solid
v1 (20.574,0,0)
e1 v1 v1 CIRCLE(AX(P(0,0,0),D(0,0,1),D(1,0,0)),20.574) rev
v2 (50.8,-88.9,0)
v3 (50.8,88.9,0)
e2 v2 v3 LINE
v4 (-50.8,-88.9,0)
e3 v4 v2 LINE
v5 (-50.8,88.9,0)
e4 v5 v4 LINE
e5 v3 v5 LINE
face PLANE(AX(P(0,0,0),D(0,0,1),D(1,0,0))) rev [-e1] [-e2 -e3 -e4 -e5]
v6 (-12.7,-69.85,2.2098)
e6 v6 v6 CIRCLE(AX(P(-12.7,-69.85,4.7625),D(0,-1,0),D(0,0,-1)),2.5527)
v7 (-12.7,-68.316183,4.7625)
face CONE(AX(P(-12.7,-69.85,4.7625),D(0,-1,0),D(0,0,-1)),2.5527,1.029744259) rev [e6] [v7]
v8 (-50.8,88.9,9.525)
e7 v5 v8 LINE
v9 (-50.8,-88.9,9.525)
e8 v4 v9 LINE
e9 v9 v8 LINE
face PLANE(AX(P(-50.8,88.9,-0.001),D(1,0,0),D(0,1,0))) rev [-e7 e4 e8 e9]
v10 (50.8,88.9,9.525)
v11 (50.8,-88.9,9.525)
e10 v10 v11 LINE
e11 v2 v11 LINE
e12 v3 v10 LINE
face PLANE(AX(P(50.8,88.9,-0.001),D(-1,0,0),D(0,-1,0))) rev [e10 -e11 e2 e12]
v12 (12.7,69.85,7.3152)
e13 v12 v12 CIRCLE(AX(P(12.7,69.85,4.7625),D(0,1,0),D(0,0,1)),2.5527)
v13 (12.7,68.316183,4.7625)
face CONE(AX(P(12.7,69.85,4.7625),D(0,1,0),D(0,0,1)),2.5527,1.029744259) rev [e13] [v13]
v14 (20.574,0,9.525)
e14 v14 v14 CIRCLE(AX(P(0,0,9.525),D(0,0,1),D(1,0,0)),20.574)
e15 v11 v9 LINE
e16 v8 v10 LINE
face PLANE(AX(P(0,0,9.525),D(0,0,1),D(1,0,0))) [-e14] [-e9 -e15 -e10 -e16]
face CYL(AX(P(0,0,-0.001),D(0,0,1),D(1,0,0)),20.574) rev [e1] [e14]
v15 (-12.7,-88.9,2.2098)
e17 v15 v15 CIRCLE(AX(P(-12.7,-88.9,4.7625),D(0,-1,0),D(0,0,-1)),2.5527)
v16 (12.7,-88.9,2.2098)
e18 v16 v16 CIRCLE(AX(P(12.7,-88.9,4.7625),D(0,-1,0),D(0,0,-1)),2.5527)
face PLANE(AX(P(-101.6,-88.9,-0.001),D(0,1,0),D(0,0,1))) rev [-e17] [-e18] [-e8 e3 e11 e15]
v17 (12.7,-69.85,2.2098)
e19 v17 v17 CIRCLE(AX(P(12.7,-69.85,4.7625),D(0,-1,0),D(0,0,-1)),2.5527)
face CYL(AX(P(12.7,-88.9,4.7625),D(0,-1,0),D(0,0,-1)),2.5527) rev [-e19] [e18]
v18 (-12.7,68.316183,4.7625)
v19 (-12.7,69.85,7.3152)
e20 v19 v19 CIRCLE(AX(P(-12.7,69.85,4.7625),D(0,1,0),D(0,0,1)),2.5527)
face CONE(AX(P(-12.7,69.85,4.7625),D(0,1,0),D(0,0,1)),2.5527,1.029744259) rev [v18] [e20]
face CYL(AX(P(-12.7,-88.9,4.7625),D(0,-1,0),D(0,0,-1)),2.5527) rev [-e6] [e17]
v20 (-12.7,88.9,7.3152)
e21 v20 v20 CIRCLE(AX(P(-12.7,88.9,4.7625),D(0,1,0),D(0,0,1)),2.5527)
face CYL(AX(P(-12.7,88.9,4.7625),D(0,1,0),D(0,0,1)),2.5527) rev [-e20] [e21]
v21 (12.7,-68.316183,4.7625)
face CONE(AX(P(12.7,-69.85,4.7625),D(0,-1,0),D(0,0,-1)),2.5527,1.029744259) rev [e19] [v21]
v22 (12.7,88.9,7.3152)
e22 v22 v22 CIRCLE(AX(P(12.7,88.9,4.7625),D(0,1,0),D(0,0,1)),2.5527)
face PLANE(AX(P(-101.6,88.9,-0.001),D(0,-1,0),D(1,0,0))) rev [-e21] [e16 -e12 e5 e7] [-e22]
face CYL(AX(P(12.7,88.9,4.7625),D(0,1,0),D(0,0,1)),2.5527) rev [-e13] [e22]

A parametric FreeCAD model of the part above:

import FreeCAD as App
import Part
import Sketcher

V = App.Vector
Q = App.Units.Quantity


def add_polygon(sketch, points):
    """Adds a closed chain of lines whose ends are joined by coincident constraints."""
    first, n = sketch.GeometryCount, len(points)
    for a, b in zip(points, points[1:] + points[:1]):
        sketch.addGeometry(Part.LineSegment(App.Vector(*a, 0), App.Vector(*b, 0)), False)
    for i in range(n):
        sketch.addConstraint(Sketcher.Constraint("Coincident", first + i, 2, first + (i + 1) % n, 1))

doc = App.newDocument("Part")
body = doc.addObject("PartDesign::Body", "Body")

sketch1 = body.newObject("Sketcher::SketchObject", "Sketch")
sketch1.AttachmentSupport = (doc.getObject("XY_Plane"), [""])
sketch1.MapMode = "FlatFace"
add_polygon(sketch1, [(-101.6, 152.4), (-101.6, -152.4), (101.6, -152.4), (101.6, 152.4)])
sketch1.addConstraint([
    Sketcher.Constraint("Vertical", 0),
    Sketcher.Constraint("Horizontal", 1),
    Sketcher.Constraint("Vertical", 2),
    Sketcher.Constraint("Horizontal", 3),
    Sketcher.Constraint("Symmetric", 0, 2, 2, 2, -1, 1),
    Sketcher.Constraint("DistanceX", 1, 1, 1, 2, Q("8 in")),
    Sketcher.Constraint("DistanceY", 0, 2, 0, 1, Q("12 in")),
])
pad1 = body.newObject("PartDesign::Pad", "Pad")
pad1.Profile = sketch1
pad1.Length = Q("0.375 in")

sketch2 = body.newObject("Sketcher::SketchObject", "Sketch001")
sketch2.AttachmentSupport = (doc.getObject("XY_Plane"), [""])
sketch2.MapMode = "FlatFace"
sketch2.AttachmentOffset = App.Placement(V(0, 0, 0.375 * 25.4), App.Rotation())
sketch2.addGeometry(Part.Circle(V(0, 0, 0), V(0, 0, 1), 20.574), False)
sketch2.addConstraint([
    Sketcher.Constraint("Coincident", 0, 3, -1, 1),
    Sketcher.Constraint("Diameter", 0, Q("1.62 in")),
])
pocket1 = body.newObject("PartDesign::Pocket", "Pocket")
pocket1.Profile = sketch2
pocket1.Type = "UpToFirst"

sketch3 = body.newObject("Sketcher::SketchObject", "Sketch002")
sketch3.AttachmentSupport = (doc.getObject("XY_Plane"), [""])
sketch3.MapMode = "FlatFace"
sketch3.AttachmentOffset = App.Placement(V(0, 0, 0.375 * 25.4), App.Rotation())
add_polygon(sketch3, [(-101.6, -88.9), (-101.6, -152.4), (101.6, -152.4), (101.6, -88.9)])
sketch3.addConstraint([
    Sketcher.Constraint("Vertical", 0),
    Sketcher.Constraint("Horizontal", 1),
    Sketcher.Constraint("Vertical", 2),
    Sketcher.Constraint("Horizontal", 3),
    Sketcher.Constraint("DistanceX", 1, 1, 1, 2, Q("8 in")),
    Sketcher.Constraint("DistanceY", 0, 2, 0, 1, Q("2.5 in")),
    Sketcher.Constraint("DistanceX", 0, 2, -1, 1, Q("4 in")),
    Sketcher.Constraint("DistanceY", 0, 2, -1, 1, Q("6 in")),
])
pocket2 = body.newObject("PartDesign::Pocket", "Pocket001")
pocket2.Profile = sketch3
pocket2.Type = "UpToFirst"

sketch4 = body.newObject("Sketcher::SketchObject", "Sketch003")
sketch4.AttachmentSupport = (doc.getObject("XY_Plane"), [""])
sketch4.MapMode = "FlatFace"
sketch4.AttachmentOffset = App.Placement(V(0, 0, 0.375 * 25.4), App.Rotation())
add_polygon(sketch4, [(-101.6, 152.4), (-101.6, 88.9), (101.6, 88.9), (101.6, 152.4)])
sketch4.addConstraint([
    Sketcher.Constraint("Vertical", 0),
    Sketcher.Constraint("Horizontal", 1),
    Sketcher.Constraint("Vertical", 2),
    Sketcher.Constraint("Horizontal", 3),
    Sketcher.Constraint("DistanceX", 1, 1, 1, 2, Q("8 in")),
    Sketcher.Constraint("DistanceY", 0, 2, 0, 1, Q("2.5 in")),
    Sketcher.Constraint("DistanceX", 0, 2, -1, 1, Q("4 in")),
    Sketcher.Constraint("DistanceY", -1, 1, 2, 2, Q("6 in")),
])
pocket3 = body.newObject("PartDesign::Pocket", "Pocket002")
pocket3.Profile = sketch4
pocket3.Type = "UpToFirst"

sketch5 = body.newObject("Sketcher::SketchObject", "Sketch004")
sketch5.AttachmentSupport = (doc.getObject("YZ_Plane"), [""])
sketch5.MapMode = "FlatFace"
sketch5.AttachmentOffset = App.Placement(V(0, 0, -0.5 * 25.4), App.Rotation())
add_polygon(sketch5, [(68.316183, 4.7625), (88.9, 4.7625), (88.9, 7.3152), (69.85, 7.3152)])
sketch5.addGeometry(Part.LineSegment(V(88.9, 4.7625, 0), V(68.316183, 4.7625, 0)), True)
sketch5.addConstraint([
    Sketcher.Constraint("Horizontal", 0),
    Sketcher.Constraint("Vertical", 1),
    Sketcher.Constraint("Horizontal", 2),
    Sketcher.Constraint("Horizontal", 4),
    Sketcher.Constraint("Coincident", 4, 1, 0, 2),
    Sketcher.Constraint("Equal", 0, 4),
    Sketcher.Constraint("Angle", 3, Q("-121 deg")),
    Sketcher.Constraint("DistanceX", 2, 2, 2, 1, Q("0.75 in")),
    Sketcher.Constraint("DistanceX", -1, 1, 0, 2, Q("3.5 in")),
    Sketcher.Constraint("DistanceY", 1, 1, 1, 2, Q("0.1005 in")),
    Sketcher.Constraint("DistanceY", -1, 1, 0, 2, Q("0.1875 in")),
])
groove = body.newObject("PartDesign::Groove", "Groove")
groove.Profile = sketch5
groove.ReferenceAxis = (sketch5, ["Axis0"])
groove.Angle = 360
doc.recompute()

linearpattern = body.newObject("PartDesign::LinearPattern", "LinearPattern")
linearpattern.Originals = [groove]
linearpattern.Direction = (doc.getObject("X_Axis"), [""])
linearpattern.Mode = "offset"
linearpattern.Offset = Q("1 in")
linearpattern.Occurrences = 2
body.Tip = linearpattern
doc.recompute()

mirrored = body.newObject("PartDesign::Mirrored", "Mirrored")
mirrored.Originals = [groove]
mirrored.MirrorPlane = (doc.getObject("XZ_Plane"), [""])
body.Tip = mirrored

sketch6 = body.newObject("Sketcher::SketchObject", "Sketch005")
sketch6.AttachmentSupport = (doc.getObject("YZ_Plane"), [""])
sketch6.MapMode = "FlatFace"
sketch6.AttachmentOffset = App.Placement(V(0, 0, 0.5 * 25.4), App.Rotation())
add_polygon(sketch6, [(-88.9, 4.7625), (-68.316183, 4.7625), (-69.85, 7.3152), (-88.9, 7.3152)])
sketch6.addGeometry(Part.LineSegment(V(-68.316183, 4.7625, 0), V(-88.9, 4.7625, 0)), True)
sketch6.addConstraint([
    Sketcher.Constraint("Horizontal", 0),
    Sketcher.Constraint("Horizontal", 2),
    Sketcher.Constraint("Vertical", 3),
    Sketcher.Constraint("Horizontal", 4),
    Sketcher.Constraint("Coincident", 4, 1, 0, 2),
    Sketcher.Constraint("Vertical", 2, 2, 4, 2),
    Sketcher.Constraint("Angle", 1, Q("121 deg")),
    Sketcher.Constraint("DistanceX", 2, 2, 2, 1, Q("0.75 in")),
    Sketcher.Constraint("DistanceX", 2, 2, -1, 1, Q("3.5 in")),
    Sketcher.Constraint("DistanceY", 3, 2, 3, 1, Q("0.1005 in")),
    Sketcher.Constraint("DistanceY", -1, 1, 0, 2, Q("0.1875 in")),
])
groove2 = body.newObject("PartDesign::Groove", "Groove001")
groove2.Profile = sketch6
groove2.ReferenceAxis = (sketch6, ["Axis0"])
groove2.Angle = 360

sketch7 = body.newObject("Sketcher::SketchObject", "Sketch006")
sketch7.AttachmentSupport = (doc.getObject("XY_Plane"), [""])
sketch7.MapMode = "FlatFace"
sketch7.AttachmentOffset = App.Placement(V(0, 0, 0.375 * 25.4), App.Rotation())
add_polygon(sketch7, [(-101.6, 88.9), (-101.6, -88.9), (-50.8, -88.9), (-50.8, 88.9)])
sketch7.addConstraint([
    Sketcher.Constraint("Vertical", 0),
    Sketcher.Constraint("Horizontal", 1),
    Sketcher.Constraint("Vertical", 2),
    Sketcher.Constraint("Horizontal", 3),
    Sketcher.Constraint("DistanceX", 1, 1, 1, 2, Q("2 in")),
    Sketcher.Constraint("DistanceY", 0, 2, 0, 1, Q("7 in")),
    Sketcher.Constraint("DistanceX", 0, 2, -1, 1, Q("4 in")),
    Sketcher.Constraint("DistanceY", 0, 2, -1, 1, Q("3.5 in")),
])
pocket4 = body.newObject("PartDesign::Pocket", "Pocket003")
pocket4.Profile = sketch7
pocket4.Type = "UpToFirst"

sketch8 = body.newObject("Sketcher::SketchObject", "Sketch007")
sketch8.AttachmentSupport = (doc.getObject("XY_Plane"), [""])
sketch8.MapMode = "FlatFace"
sketch8.AttachmentOffset = App.Placement(V(0, 0, 0.375 * 25.4), App.Rotation())
add_polygon(sketch8, [(50.8, 88.9), (50.8, -88.9), (101.6, -88.9), (101.6, 88.9)])
sketch8.addConstraint([
    Sketcher.Constraint("Vertical", 0),
    Sketcher.Constraint("Horizontal", 1),
    Sketcher.Constraint("Vertical", 2),
    Sketcher.Constraint("Horizontal", 3),
    Sketcher.Constraint("DistanceX", 1, 1, 1, 2, Q("2 in")),
    Sketcher.Constraint("DistanceY", 0, 2, 0, 1, Q("7 in")),
    Sketcher.Constraint("DistanceX", -1, 1, 0, 2, Q("2 in")),
    Sketcher.Constraint("DistanceY", 0, 2, -1, 1, Q("3.5 in")),
])
pocket5 = body.newObject("PartDesign::Pocket", "Pocket004")
pocket5.Profile = sketch8
pocket5.Type = "UpToFirst"

doc.recompute()
